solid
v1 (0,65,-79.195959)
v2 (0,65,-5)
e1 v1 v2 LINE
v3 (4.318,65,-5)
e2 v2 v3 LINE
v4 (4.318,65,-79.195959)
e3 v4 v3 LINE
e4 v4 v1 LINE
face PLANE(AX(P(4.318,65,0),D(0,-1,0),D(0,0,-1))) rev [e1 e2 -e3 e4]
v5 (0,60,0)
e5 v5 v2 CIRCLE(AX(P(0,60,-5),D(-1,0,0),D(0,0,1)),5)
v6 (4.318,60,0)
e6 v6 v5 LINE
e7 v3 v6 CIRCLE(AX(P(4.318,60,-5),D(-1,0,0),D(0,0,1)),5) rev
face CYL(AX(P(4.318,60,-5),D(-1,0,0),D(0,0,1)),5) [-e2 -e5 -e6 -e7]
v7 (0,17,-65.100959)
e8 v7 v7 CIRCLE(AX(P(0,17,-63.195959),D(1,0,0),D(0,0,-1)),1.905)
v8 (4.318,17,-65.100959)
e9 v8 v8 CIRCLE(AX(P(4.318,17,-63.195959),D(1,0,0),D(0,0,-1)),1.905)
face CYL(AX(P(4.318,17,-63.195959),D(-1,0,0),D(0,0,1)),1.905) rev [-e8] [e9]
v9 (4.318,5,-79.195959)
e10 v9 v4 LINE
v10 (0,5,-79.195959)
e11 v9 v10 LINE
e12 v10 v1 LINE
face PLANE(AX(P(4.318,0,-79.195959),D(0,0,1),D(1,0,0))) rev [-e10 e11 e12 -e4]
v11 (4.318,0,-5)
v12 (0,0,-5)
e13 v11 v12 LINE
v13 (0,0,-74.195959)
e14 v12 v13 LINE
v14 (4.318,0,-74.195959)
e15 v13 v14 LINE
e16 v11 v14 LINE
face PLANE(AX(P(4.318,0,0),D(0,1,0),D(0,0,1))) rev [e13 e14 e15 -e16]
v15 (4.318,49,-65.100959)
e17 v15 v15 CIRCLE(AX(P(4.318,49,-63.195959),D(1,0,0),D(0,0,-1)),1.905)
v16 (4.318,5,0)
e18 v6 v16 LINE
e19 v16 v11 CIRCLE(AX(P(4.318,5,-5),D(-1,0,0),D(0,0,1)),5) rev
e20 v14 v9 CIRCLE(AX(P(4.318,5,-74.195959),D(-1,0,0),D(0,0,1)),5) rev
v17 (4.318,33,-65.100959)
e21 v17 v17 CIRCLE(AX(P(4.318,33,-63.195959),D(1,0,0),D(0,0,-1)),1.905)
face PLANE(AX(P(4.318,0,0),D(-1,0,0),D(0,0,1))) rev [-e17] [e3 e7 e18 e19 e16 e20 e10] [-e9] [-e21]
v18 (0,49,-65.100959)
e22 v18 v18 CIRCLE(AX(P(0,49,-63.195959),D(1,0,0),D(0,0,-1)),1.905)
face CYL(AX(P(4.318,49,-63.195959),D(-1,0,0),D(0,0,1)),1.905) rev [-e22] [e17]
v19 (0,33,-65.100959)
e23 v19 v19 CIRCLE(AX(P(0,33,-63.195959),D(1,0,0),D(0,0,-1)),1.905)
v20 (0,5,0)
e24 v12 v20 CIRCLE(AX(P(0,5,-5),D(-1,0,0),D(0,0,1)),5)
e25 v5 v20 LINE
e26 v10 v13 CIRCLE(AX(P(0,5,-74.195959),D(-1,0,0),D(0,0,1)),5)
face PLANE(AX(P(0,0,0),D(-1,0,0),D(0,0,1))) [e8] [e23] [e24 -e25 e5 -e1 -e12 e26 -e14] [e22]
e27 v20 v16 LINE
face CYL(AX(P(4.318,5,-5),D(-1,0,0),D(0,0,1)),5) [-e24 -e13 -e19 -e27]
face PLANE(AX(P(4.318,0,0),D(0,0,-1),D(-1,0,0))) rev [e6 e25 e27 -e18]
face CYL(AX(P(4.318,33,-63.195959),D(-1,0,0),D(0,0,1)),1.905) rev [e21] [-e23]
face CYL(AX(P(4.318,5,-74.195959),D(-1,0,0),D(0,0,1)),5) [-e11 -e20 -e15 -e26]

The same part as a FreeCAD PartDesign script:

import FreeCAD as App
import Part
import Sketcher
Q = App.Units.Quantity


def edges_at(feature, points):
    """Names of the edges that pass closest to the given points."""
    edges = feature.Shape.Edges
    near = lambda p: min(range(len(edges)), key=lambda i: edges[i].distToShape(Part.Vertex(*p))[0])
    return sorted({f"Edge{near(p) + 1}" for p in points})

doc = App.newDocument("Part")
body = doc.addObject("PartDesign::Body", "Body")

# Sketch on YZ plane
sketch1 = body.newObject("Sketcher::SketchObject", "Sketch")
sketch1.AttachmentSupport = (doc.getObject("YZ_Plane"), [""])
sketch1.MapMode = "FlatFace"
sketch1.addGeometry(Part.LineSegment(App.Vector(65, 0, 0), App.Vector(0, 0, 0)), False)
sketch1.addGeometry(Part.LineSegment(App.Vector(0, 0, 0), App.Vector(0, -79.2, 0)), False)
sketch1.addGeometry(Part.LineSegment(App.Vector(0, -79.2, 0), App.Vector(65, -79.2, 0)), False)
sketch1.addGeometry(Part.LineSegment(App.Vector(65, -79.2, 0), App.Vector(65, 0, 0)), False)
sketch1.addGeometry(Part.Circle(App.Vector(17, -63.2, 0), App.Vector(0, 0, 1), 1.9), False)
sketch1.addGeometry(Part.Circle(App.Vector(33, -63.2, 0), App.Vector(0, 0, 1), 1.9), False)
sketch1.addGeometry(Part.Circle(App.Vector(49, -63.2, 0), App.Vector(0, 0, 1), 1.9), False)
sketch1.addConstraint(Sketcher.Constraint("Coincident", 0, 2, 1, 1))
sketch1.addConstraint(Sketcher.Constraint("Coincident", 1, 2, 2, 1))
sketch1.addConstraint(Sketcher.Constraint("Coincident", 2, 2, 3, 1))
sketch1.addConstraint(Sketcher.Constraint("Coincident", 3, 2, 0, 1))
sketch1.addConstraint(Sketcher.Constraint("Horizontal", 0))
sketch1.addConstraint(Sketcher.Constraint("Vertical", 1))
sketch1.addConstraint(Sketcher.Constraint("Horizontal", 2))
sketch1.addConstraint(Sketcher.Constraint("Vertical", 3))
sketch1.addConstraint(Sketcher.Constraint("Coincident", 0, 2, -1, 1))
sketch1.addConstraint(Sketcher.Constraint("Equal", 4, 5))
sketch1.addConstraint(Sketcher.Constraint("Equal", 5, 6))
sketch1.addConstraint(Sketcher.Constraint("Horizontal", 4, 3, 5, 3))
sketch1.addConstraint(Sketcher.Constraint("Horizontal", 5, 3, 6, 3))
sketch1.addConstraint(Sketcher.Constraint("Diameter", 4, Q("3.81 mm")))
sketch1.addConstraint(Sketcher.Constraint("DistanceX", 0, 2, 0, 1, Q("65 mm")))
sketch1.addConstraint(Sketcher.Constraint("DistanceX", -1, 1, 4, 3, Q("17 mm")))
sketch1.addConstraint(Sketcher.Constraint("DistanceX", -1, 1, 5, 3, Q("33 mm")))
sketch1.addConstraint(Sketcher.Constraint("DistanceX", -1, 1, 6, 3, Q("49 mm")))
sketch1.addConstraint(Sketcher.Constraint("DistanceY", 1, 2, 4, 3, Q("16 mm")))
sketch1.addConstraint(Sketcher.Constraint("DistanceY", 1, 2, 1, 1, Q("79.195959 mm")))
pad1 = body.newObject("PartDesign::Pad", "Pad")
pad1.Profile = sketch1
pad1.Length = 4.318
doc.recompute()

fillet = body.newObject("PartDesign::Fillet", "Fillet")
fillet.Base = (pad1, edges_at(pad1, [(2.159, 65, 0), (2.159, 0, -79.196), (2.159, 0, 0)]))
fillet.Radius = 5

doc.recompute()
